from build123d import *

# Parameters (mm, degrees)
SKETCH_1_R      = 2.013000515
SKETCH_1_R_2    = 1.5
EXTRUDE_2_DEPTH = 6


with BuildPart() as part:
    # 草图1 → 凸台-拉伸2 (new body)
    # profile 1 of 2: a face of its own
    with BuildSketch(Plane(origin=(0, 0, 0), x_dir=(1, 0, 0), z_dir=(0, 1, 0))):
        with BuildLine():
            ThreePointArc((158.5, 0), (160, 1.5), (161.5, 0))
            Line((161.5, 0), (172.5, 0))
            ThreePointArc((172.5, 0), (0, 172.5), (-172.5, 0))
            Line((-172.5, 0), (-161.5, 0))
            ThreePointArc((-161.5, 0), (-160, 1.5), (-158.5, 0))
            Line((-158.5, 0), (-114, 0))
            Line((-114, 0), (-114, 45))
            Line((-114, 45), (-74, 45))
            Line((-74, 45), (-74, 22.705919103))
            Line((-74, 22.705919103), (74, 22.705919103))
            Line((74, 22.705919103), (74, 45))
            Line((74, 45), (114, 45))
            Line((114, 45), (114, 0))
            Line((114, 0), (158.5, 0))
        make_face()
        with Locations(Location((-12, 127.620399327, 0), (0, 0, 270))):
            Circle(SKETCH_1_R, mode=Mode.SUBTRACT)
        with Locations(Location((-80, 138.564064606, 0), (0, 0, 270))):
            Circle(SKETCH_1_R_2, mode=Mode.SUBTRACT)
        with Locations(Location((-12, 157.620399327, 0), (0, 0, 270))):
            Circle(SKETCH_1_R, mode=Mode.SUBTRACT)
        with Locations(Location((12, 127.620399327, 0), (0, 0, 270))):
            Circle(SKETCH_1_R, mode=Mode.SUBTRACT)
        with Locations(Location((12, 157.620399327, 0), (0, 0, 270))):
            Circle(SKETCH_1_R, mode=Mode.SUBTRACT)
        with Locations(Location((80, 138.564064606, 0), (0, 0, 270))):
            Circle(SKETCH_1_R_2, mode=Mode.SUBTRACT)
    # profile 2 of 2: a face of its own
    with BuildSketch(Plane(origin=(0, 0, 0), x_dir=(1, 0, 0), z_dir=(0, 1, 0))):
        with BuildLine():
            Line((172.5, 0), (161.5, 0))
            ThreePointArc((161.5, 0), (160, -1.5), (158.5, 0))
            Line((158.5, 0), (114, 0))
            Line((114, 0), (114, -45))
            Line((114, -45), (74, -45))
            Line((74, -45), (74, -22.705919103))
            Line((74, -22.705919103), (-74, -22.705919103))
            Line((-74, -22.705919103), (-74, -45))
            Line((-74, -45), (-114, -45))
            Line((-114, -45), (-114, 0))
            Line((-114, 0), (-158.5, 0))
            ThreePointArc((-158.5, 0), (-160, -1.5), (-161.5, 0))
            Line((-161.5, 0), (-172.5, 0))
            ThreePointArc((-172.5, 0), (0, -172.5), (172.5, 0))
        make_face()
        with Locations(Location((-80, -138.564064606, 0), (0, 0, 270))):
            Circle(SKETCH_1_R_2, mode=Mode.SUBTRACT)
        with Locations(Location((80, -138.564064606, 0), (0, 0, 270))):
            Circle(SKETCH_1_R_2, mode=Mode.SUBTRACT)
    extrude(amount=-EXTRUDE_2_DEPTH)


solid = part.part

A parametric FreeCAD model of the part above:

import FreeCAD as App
import Part
import Sketcher
Q = App.Units.Quantity

doc = App.newDocument("Part")
body = doc.addObject("PartDesign::Body", "Body")

# Sketch on XZ plane
sketch1 = doc.addObject("Sketcher::SketchObject", "Sketch")
body.addObject(sketch1)
sketch1.AttachmentSupport = (doc.XZ_Plane, [""])
sketch1.MapMode = "FlatFace"
sketch1.addGeometry(Part.Circle(App.Vector(0, 0, 0), App.Vector(0, 0, 1), 172.5), False)
sketch1.addGeometry(Part.Circle(App.Vector(160, 0, 0), App.Vector(0, 0, 1), 1.5), False)
sketch1.addGeometry(Part.LineSegment(App.Vector(114, -45, 0), App.Vector(114, 45, 0)), False)
sketch1.addGeometry(Part.LineSegment(App.Vector(114, 45, 0), App.Vector(74, 45, 0)), False)
sketch1.addGeometry(Part.LineSegment(App.Vector(74, 45, 0), App.Vector(74, 22.7, 0)), False)
sketch1.addGeometry(Part.LineSegment(App.Vector(74, 22.7, 0), App.Vector(-74, 22.7, 0)), False)
sketch1.addGeometry(Part.LineSegment(App.Vector(-74, 22.7, 0), App.Vector(-74, 45, 0)), False)
sketch1.addGeometry(Part.LineSegment(App.Vector(-74, 45, 0), App.Vector(-114, 45, 0)), False)
sketch1.addGeometry(Part.LineSegment(App.Vector(-114, 45, 0), App.Vector(-114, -45, 0)), False)
sketch1.addGeometry(Part.LineSegment(App.Vector(-114, -45, 0), App.Vector(-74, -45, 0)), False)
sketch1.addGeometry(Part.LineSegment(App.Vector(-74, -45, 0), App.Vector(-74, -22.7, 0)), False)
sketch1.addGeometry(Part.LineSegment(App.Vector(-74, -22.7, 0), App.Vector(74, -22.7, 0)), False)
sketch1.addGeometry(Part.LineSegment(App.Vector(74, -22.7, 0), App.Vector(74, -45, 0)), False)
sketch1.addGeometry(Part.LineSegment(App.Vector(74, -45, 0), App.Vector(114, -45, 0)), False)
sketch1.addGeometry(Part.Circle(App.Vector(-160, 0, 0), App.Vector(0, 0, 1), 1.5), False)
sketch1.addGeometry(Part.Circle(App.Vector(-12, -127.6, 0), App.Vector(0, 0, 1), 2), False)
sketch1.addGeometry(Part.Circle(App.Vector(-80, -138.6, 0), App.Vector(0, 0, 1), 1.5), False)
sketch1.addGeometry(Part.Circle(App.Vector(12, -127.6, 0), App.Vector(0, 0, 1), 2), False)
sketch1.addGeometry(Part.Circle(App.Vector(80, -138.6, 0), App.Vector(0, 0, 1), 1.5), False)
sketch1.addGeometry(Part.Circle(App.Vector(-12, -157.6, 0), App.Vector(0, 0, 1), 2), False)
sketch1.addGeometry(Part.Circle(App.Vector(12, -157.6, 0), App.Vector(0, 0, 1), 2), False)
sketch1.addGeometry(Part.Circle(App.Vector(-80, 138.6, 0), App.Vector(0, 0, 1), 1.5), False)
sketch1.addGeometry(Part.Circle(App.Vector(80, 138.6, 0), App.Vector(0, 0, 1), 1.5), False)
sketch1.addConstraint(Sketcher.Constraint("Coincident", 2, 2, 3, 1))
sketch1.addConstraint(Sketcher.Constraint("Coincident", 3, 2, 4, 1))
sketch1.addConstraint(Sketcher.Constraint("Coincident", 4, 2, 5, 1))
sketch1.addConstraint(Sketcher.Constraint("Coincident", 5, 2, 6, 1))
sketch1.addConstraint(Sketcher.Constraint("Coincident", 6, 2, 7, 1))
sketch1.addConstraint(Sketcher.Constraint("Coincident", 7, 2, 8, 1))
sketch1.addConstraint(Sketcher.Constraint("Coincident", 8, 2, 9, 1))
sketch1.addConstraint(Sketcher.Constraint("Coincident", 9, 2, 10, 1))
sketch1.addConstraint(Sketcher.Constraint("Coincident", 10, 2, 11, 1))
sketch1.addConstraint(Sketcher.Constraint("Coincident", 11, 2, 12, 1))
sketch1.addConstraint(Sketcher.Constraint("Coincident", 12, 2, 13, 1))
sketch1.addConstraint(Sketcher.Constraint("Coincident", 13, 2, 2, 1))
sketch1.addConstraint(Sketcher.Constraint("Vertical", 2))
sketch1.addConstraint(Sketcher.Constraint("Horizontal", 3))
sketch1.addConstraint(Sketcher.Constraint("Vertical", 4))
sketch1.addConstraint(Sketcher.Constraint("Horizontal", 5))
sketch1.addConstraint(Sketcher.Constraint("Vertical", 6))
sketch1.addConstraint(Sketcher.Constraint("Horizontal", 7))
sketch1.addConstraint(Sketcher.Constraint("Vertical", 8))
sketch1.addConstraint(Sketcher.Constraint("Horizontal", 9))
sketch1.addConstraint(Sketcher.Constraint("Vertical", 10))
sketch1.addConstraint(Sketcher.Constraint("Horizontal", 11))
sketch1.addConstraint(Sketcher.Constraint("Vertical", 12))
sketch1.addConstraint(Sketcher.Constraint("Horizontal", 13))
sketch1.addConstraint(Sketcher.Constraint("Coincident", 0, 3, -1, 1))
sketch1.addConstraint(Sketcher.Constraint("Equal", 1, 14))
sketch1.addConstraint(Sketcher.Constraint("Equal", 14, 16))
sketch1.addConstraint(Sketcher.Constraint("Equal", 15, 17))
sketch1.addConstraint(Sketcher.Constraint("Equal", 16, 18))
sketch1.addConstraint(Sketcher.Constraint("Equal", 17, 19))
sketch1.addConstraint(Sketcher.Constraint("Equal", 19, 20))
sketch1.addConstraint(Sketcher.Constraint("Equal", 18, 21))
sketch1.addConstraint(Sketcher.Constraint("Equal", 21, 22))
sketch1.addConstraint(Sketcher.Constraint("Symmetric", 1, 3, 14, 3, -1, 1))
sketch1.addConstraint(Sketcher.Constraint("Symmetric", 18, 3, 21, 3, -1, 1))
sketch1.addConstraint(Sketcher.Constraint("Symmetric", 16, 3, 22, 3, -1, 1))
sketch1.addConstraint(Sketcher.Constraint("Symmetric", 2, 2, 8, 2, -1, 1))
sketch1.addConstraint(Sketcher.Constraint("Symmetric", 4, 2, 10, 2, -1, 1))
sketch1.addConstraint(Sketcher.Constraint("Symmetric", 6, 2, 12, 2, -1, 1))
sketch1.addConstraint(Sketcher.Constraint("Symmetric", 15, 3, 17, 3, -2))
sketch1.addConstraint(Sketcher.Constraint("Symmetric", 16, 3, 18, 3, -2))
sketch1.addConstraint(Sketcher.Constraint("Symmetric", 19, 3, 20, 3, -2))
sketch1.addConstraint(Sketcher.Constraint("Symmetric", 3, 2, 6, 2, -2))
sketch1.addConstraint(Sketcher.Constraint("PointOnObject", 1, 3, -1))
sketch1.addConstraint(Sketcher.Constraint("Vertical", 15, 3, 19, 3))
sketch1.addConstraint(Sketcher.Constraint("Diameter", 0, Q("345 mm")))
sketch1.addConstraint(Sketcher.Constraint("Diameter", 1, Q("3 mm")))
sketch1.addConstraint(Sketcher.Constraint("DistanceX", 3, 2, 3, 1, Q("40 mm")))
sketch1.addConstraint(Sketcher.Constraint("DistanceX", 5, 2, 5, 1, Q("148 mm")))
sketch1.addConstraint(Sketcher.Constraint("DistanceY", 2, 1, 2, 2, Q("90 mm")))
sketch1.addConstraint(Sketcher.Constraint("Diameter", 15, Q("4.026001 mm")))
sketch1.addConstraint(Sketcher.Constraint("DistanceX", -1, 1, 1, 3, Q("160 mm")))
sketch1.addConstraint(Sketcher.Constraint("DistanceX", 15, 3, -1, 1, Q("12 mm")))
sketch1.addConstraint(Sketcher.Constraint("DistanceX", 16, 3, -1, 1, Q("80 mm")))
sketch1.addConstraint(Sketcher.Constraint("DistanceY", 19, 3, 15, 3, Q("30 mm")))
sketch1.addConstraint(Sketcher.Constraint("DistanceY", 4, 2, 4, 1, Q("22.294081 mm")))
sketch1.addConstraint(Sketcher.Constraint("DistanceY", 15, 3, -1, 1, Q("127.620399 mm")))
sketch1.addConstraint(Sketcher.Constraint("DistanceY", 16, 3, 21, 3, Q("277.128129 mm")))
pad1 = doc.addObject("PartDesign::Pad", "Pad")
body.addObject(pad1)
pad1.Profile = sketch1
pad1.Length = 6

doc.recompute()
